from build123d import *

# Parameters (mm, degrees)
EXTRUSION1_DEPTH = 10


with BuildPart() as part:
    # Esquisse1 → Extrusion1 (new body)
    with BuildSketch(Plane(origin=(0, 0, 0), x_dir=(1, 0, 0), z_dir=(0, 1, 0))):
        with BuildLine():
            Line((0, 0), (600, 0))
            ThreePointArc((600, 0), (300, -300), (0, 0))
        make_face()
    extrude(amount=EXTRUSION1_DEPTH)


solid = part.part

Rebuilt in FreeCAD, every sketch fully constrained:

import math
import FreeCAD as App
import Part
import Sketcher
from FreeCAD import Vector

doc = App.newDocument("Part")
params = doc.addObject("Spreadsheet::Sheet", "Params")
for row, (alias, value) in enumerate([
    ("sketch1_radius", "300 mm"),
    ("pad1_length", "10 mm"),
], start=1):
    params.set(f"A{row}", alias)
    params.set(f"B{row}", "=" + value)
    params.setAlias(f"B{row}", alias)

body = doc.addObject("PartDesign::Body", "Body")

# Sketch on XZ plane
sketch1 = doc.addObject("Sketcher::SketchObject", "Sketch")
body.addObject(sketch1)
sketch1.AttachmentSupport = (doc.XZ_Plane, [""])
sketch1.MapMode = "FlatFace"
sketch1.addGeometry(Part.LineSegment(Vector(600, 0, 0), Vector(0, 0, 0)), False)
sketch1.addGeometry(Part.ArcOfCircle(Part.Circle(Vector(300, 0, 0), Vector(0, 0, 1), 300), math.radians(0), math.radians(180)), False)
sketch1.addConstraint(Sketcher.Constraint("Coincident", 0, 1, 1, 1))
sketch1.addConstraint(Sketcher.Constraint("Coincident", 1, 2, 0, 2))
sketch1.addConstraint(Sketcher.Constraint("Horizontal", 0))
sketch1.addConstraint(Sketcher.Constraint("Coincident", 1, 2, -1, 1))
sketch1.addConstraint(Sketcher.Constraint("PointOnObject", 1, 3, -1))
sketch1.addConstraint(Sketcher.Constraint("Radius", 1, 300.0))
sketch1.setExpression("Constraints[5]", "Params.sketch1_radius")
pad1 = doc.addObject("PartDesign::Pad", "Pad")
body.addObject(pad1)
pad1.Profile = sketch1
pad1.setExpression("Length", "Params.pad1_length")
pad1.Reversed = True

doc.recompute()
